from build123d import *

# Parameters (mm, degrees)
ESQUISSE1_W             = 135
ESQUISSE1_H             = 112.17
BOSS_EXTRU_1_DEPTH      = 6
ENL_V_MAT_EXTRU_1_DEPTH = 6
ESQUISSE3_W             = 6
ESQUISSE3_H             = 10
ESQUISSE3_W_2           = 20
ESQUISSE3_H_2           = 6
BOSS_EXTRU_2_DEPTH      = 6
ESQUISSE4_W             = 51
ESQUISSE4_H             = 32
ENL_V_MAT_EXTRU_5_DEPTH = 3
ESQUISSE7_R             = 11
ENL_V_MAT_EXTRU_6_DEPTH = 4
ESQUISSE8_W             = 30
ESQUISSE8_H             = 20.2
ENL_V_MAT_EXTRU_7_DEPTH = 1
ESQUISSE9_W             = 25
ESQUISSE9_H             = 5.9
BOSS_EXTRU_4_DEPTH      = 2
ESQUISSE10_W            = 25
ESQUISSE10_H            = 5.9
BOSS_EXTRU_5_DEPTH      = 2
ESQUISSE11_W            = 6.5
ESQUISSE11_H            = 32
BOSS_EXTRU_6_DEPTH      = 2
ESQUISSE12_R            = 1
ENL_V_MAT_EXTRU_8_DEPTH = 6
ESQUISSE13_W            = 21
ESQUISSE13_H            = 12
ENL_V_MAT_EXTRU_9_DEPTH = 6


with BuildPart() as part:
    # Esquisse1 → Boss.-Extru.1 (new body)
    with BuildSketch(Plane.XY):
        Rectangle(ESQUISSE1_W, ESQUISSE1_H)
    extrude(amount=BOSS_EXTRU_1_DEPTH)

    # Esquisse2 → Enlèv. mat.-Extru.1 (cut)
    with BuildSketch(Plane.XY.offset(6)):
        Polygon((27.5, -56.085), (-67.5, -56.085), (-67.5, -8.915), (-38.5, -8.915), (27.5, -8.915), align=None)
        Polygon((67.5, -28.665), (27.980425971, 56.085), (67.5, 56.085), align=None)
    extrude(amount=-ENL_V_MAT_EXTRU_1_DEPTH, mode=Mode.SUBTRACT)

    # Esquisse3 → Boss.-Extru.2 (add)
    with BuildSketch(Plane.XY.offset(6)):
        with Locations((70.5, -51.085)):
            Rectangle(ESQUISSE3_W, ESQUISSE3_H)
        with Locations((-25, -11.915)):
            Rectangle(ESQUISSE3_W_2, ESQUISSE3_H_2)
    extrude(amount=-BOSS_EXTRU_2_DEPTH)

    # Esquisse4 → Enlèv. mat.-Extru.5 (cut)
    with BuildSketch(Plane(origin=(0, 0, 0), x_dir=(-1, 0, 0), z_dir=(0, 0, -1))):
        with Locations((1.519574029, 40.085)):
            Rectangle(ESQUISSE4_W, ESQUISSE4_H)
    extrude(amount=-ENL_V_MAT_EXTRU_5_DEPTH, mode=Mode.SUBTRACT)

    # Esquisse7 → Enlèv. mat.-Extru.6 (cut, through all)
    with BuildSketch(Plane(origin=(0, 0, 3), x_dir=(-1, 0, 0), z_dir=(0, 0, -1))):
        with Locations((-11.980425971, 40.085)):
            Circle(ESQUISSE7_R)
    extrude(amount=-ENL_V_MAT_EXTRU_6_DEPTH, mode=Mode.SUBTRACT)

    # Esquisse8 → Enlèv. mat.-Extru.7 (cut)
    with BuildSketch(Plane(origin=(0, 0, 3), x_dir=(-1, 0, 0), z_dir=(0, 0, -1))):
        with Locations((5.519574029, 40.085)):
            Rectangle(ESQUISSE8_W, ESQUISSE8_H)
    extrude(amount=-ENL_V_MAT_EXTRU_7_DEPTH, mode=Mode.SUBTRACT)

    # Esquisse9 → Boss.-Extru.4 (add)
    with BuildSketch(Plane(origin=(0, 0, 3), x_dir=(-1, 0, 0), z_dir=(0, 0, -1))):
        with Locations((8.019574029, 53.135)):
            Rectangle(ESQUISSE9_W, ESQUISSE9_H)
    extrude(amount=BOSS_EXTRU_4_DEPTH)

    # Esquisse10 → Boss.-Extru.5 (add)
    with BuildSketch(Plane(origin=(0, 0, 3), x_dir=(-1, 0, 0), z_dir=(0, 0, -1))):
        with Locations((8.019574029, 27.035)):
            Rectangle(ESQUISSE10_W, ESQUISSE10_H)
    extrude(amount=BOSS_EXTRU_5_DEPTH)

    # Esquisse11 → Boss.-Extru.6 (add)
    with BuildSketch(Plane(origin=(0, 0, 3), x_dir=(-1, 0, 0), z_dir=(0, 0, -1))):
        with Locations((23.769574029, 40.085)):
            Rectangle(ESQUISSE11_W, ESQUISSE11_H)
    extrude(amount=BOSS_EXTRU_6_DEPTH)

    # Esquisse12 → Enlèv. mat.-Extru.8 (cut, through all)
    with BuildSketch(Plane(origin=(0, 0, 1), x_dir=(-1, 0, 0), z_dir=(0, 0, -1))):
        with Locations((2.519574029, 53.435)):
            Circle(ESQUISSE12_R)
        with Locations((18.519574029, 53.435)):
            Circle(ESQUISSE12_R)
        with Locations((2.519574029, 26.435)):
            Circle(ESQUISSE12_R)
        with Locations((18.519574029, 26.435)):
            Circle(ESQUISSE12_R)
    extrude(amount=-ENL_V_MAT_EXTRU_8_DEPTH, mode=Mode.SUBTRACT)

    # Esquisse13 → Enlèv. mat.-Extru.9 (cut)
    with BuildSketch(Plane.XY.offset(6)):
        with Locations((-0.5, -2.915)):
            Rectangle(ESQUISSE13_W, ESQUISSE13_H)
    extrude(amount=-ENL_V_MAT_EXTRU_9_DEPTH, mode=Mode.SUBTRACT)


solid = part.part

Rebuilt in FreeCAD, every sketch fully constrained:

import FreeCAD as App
import Part
import Sketcher
Q = App.Units.Quantity

doc = App.newDocument("Part")
body = doc.addObject("PartDesign::Body", "Body")

# Sketch on XY plane
sketch1 = body.newObject("Sketcher::SketchObject", "Sketch")
sketch1.AttachmentSupport = (doc.getObject("XY_Plane"), [""])
sketch1.MapMode = "FlatFace"
sketch1.addGeometry(Part.LineSegment(App.Vector(-68, 56, 0), App.Vector(-68, -56, 0)), False)
sketch1.addGeometry(Part.LineSegment(App.Vector(-68, -56, 0), App.Vector(68, -56, 0)), False)
sketch1.addGeometry(Part.LineSegment(App.Vector(68, -56, 0), App.Vector(68, 56, 0)), False)
sketch1.addGeometry(Part.LineSegment(App.Vector(68, 56, 0), App.Vector(-68, 56, 0)), False)
sketch1.addConstraint(Sketcher.Constraint("Coincident", 0, 2, 1, 1))
sketch1.addConstraint(Sketcher.Constraint("Coincident", 1, 2, 2, 1))
sketch1.addConstraint(Sketcher.Constraint("Coincident", 2, 2, 3, 1))
sketch1.addConstraint(Sketcher.Constraint("Coincident", 3, 2, 0, 1))
sketch1.addConstraint(Sketcher.Constraint("Vertical", 0))
sketch1.addConstraint(Sketcher.Constraint("Horizontal", 1))
sketch1.addConstraint(Sketcher.Constraint("Vertical", 2))
sketch1.addConstraint(Sketcher.Constraint("Horizontal", 3))
sketch1.addConstraint(Sketcher.Constraint("Symmetric", 0, 2, 2, 2, -1, 1))
sketch1.addConstraint(Sketcher.Constraint("DistanceX", 1, 1, 1, 2, Q("135 mm")))
sketch1.addConstraint(Sketcher.Constraint("DistanceY", 0, 2, 0, 1, Q("112.17 mm")))
pad1 = body.newObject("PartDesign::Pad", "Pad")
pad1.Profile = sketch1
pad1.Length = 6

# Sketch on XY plane
sketch2 = body.newObject("Sketcher::SketchObject", "Sketch001")
sketch2.AttachmentSupport = (doc.getObject("XY_Plane"), [""])
sketch2.MapMode = "FlatFace"
sketch2.AttachmentOffset = App.Placement(App.Vector(0, 0, 6), App.Rotation())
sketch2.addGeometry(Part.LineSegment(App.Vector(-68, -56, 0), App.Vector(28, -56, 0)), False)
sketch2.addGeometry(Part.LineSegment(App.Vector(28, -56, 0), App.Vector(28, -9, 0)), False)
sketch2.addGeometry(Part.LineSegment(App.Vector(28, -9, 0), App.Vector(-68, -9, 0)), False)
sketch2.addGeometry(Part.LineSegment(App.Vector(-68, -9, 0), App.Vector(-68, -56, 0)), False)
sketch2.addGeometry(Part.LineSegment(App.Vector(28, 56, 0), App.Vector(68, -29, 0)), False)
sketch2.addGeometry(Part.LineSegment(App.Vector(68, -29, 0), App.Vector(68, 56, 0)), False)
sketch2.addGeometry(Part.LineSegment(App.Vector(68, 56, 0), App.Vector(28, 56, 0)), False)
sketch2.addConstraint(Sketcher.Constraint("Coincident", 0, 2, 1, 1))
sketch2.addConstraint(Sketcher.Constraint("Coincident", 1, 2, 2, 1))
sketch2.addConstraint(Sketcher.Constraint("Coincident", 2, 2, 3, 1))
sketch2.addConstraint(Sketcher.Constraint("Coincident", 3, 2, 0, 1))
sketch2.addConstraint(Sketcher.Constraint("Coincident", 4, 2, 5, 1))
sketch2.addConstraint(Sketcher.Constraint("Coincident", 5, 2, 6, 1))
sketch2.addConstraint(Sketcher.Constraint("Coincident", 6, 2, 4, 1))
sketch2.addConstraint(Sketcher.Constraint("Horizontal", 0))
sketch2.addConstraint(Sketcher.Constraint("Vertical", 1))
sketch2.addConstraint(Sketcher.Constraint("Horizontal", 2))
sketch2.addConstraint(Sketcher.Constraint("Vertical", 3))
sketch2.addConstraint(Sketcher.Constraint("Vertical", 5))
sketch2.addConstraint(Sketcher.Constraint("Horizontal", 6))
sketch2.addConstraint(Sketcher.Constraint("Symmetric", 3, 2, 5, 2, -1, 1))
sketch2.addConstraint(Sketcher.Constraint("DistanceX", 0, 1, 0, 2, Q("95 mm")))
sketch2.addConstraint(Sketcher.Constraint("Angle", 4, Q("-65 deg")))
sketch2.addConstraint(Sketcher.Constraint("DistanceX", 1, 2, 4, 2, Q("40 mm")))
sketch2.addConstraint(Sketcher.Constraint("DistanceY", 1, 2, 5, 2, Q("65 mm")))
sketch2.addConstraint(Sketcher.Constraint("DistanceY", 1, 1, 1, 2, Q("47.17 mm")))
sketch2.addConstraint(Sketcher.Constraint("DistanceY", 5, 1, 5, 2, Q("84.75 mm")))
pocket1 = body.newObject("PartDesign::Pocket", "Pocket")
pocket1.Profile = sketch2
pocket1.Length = 6

# Sketch on XY plane
sketch3 = body.newObject("Sketcher::SketchObject", "Sketch002")
sketch3.AttachmentSupport = (doc.getObject("XY_Plane"), [""])
sketch3.MapMode = "FlatFace"
sketch3.AttachmentOffset = App.Placement(App.Vector(0, 0, 6), App.Rotation())
sketch3.addGeometry(Part.LineSegment(App.Vector(68, -46, 0), App.Vector(68, -56, 0)), False)
sketch3.addGeometry(Part.LineSegment(App.Vector(68, -56, 0), App.Vector(74, -56, 0)), False)
sketch3.addGeometry(Part.LineSegment(App.Vector(74, -56, 0), App.Vector(74, -46, 0)), False)
sketch3.addGeometry(Part.LineSegment(App.Vector(74, -46, 0), App.Vector(68, -46, 0)), False)
sketch3.addGeometry(Part.LineSegment(App.Vector(-35, -9, 0), App.Vector(-35, -15, 0)), False)
sketch3.addGeometry(Part.LineSegment(App.Vector(-35, -15, 0), App.Vector(-15, -15, 0)), False)
sketch3.addGeometry(Part.LineSegment(App.Vector(-15, -15, 0), App.Vector(-15, -9, 0)), False)
sketch3.addGeometry(Part.LineSegment(App.Vector(-15, -9, 0), App.Vector(-35, -9, 0)), False)
sketch3.addConstraint(Sketcher.Constraint("Coincident", 0, 2, 1, 1))
sketch3.addConstraint(Sketcher.Constraint("Coincident", 1, 2, 2, 1))
sketch3.addConstraint(Sketcher.Constraint("Coincident", 2, 2, 3, 1))
sketch3.addConstraint(Sketcher.Constraint("Coincident", 3, 2, 0, 1))
sketch3.addConstraint(Sketcher.Constraint("Coincident", 4, 2, 5, 1))
sketch3.addConstraint(Sketcher.Constraint("Coincident", 5, 2, 6, 1))
sketch3.addConstraint(Sketcher.Constraint("Coincident", 6, 2, 7, 1))
sketch3.addConstraint(Sketcher.Constraint("Coincident", 7, 2, 4, 1))
sketch3.addConstraint(Sketcher.Constraint("Vertical", 0))
sketch3.addConstraint(Sketcher.Constraint("Horizontal", 1))
sketch3.addConstraint(Sketcher.Constraint("Vertical", 2))
sketch3.addConstraint(Sketcher.Constraint("Horizontal", 3))
sketch3.addConstraint(Sketcher.Constraint("Vertical", 4))
sketch3.addConstraint(Sketcher.Constraint("Horizontal", 5))
sketch3.addConstraint(Sketcher.Constraint("Vertical", 6))
sketch3.addConstraint(Sketcher.Constraint("Horizontal", 7))
sketch3.addConstraint(Sketcher.Constraint("Equal", 3, 4))
sketch3.addConstraint(Sketcher.Constraint("DistanceX", 1, 1, 1, 2, Q("6 mm")))
sketch3.addConstraint(Sketcher.Constraint("DistanceX", 5, 1, 5, 2, Q("20 mm")))
sketch3.addConstraint(Sketcher.Constraint("DistanceY", 0, 2, 0, 1, Q("10 mm")))
sketch3.addConstraint(Sketcher.Constraint("DistanceX", 4, 2, -1, 1, Q("35 mm")))
sketch3.addConstraint(Sketcher.Constraint("DistanceX", -1, 1, 0, 2, Q("67.5 mm")))
sketch3.addConstraint(Sketcher.Constraint("DistanceY", 3, 2, 4, 2, Q("31.17 mm")))
sketch3.addConstraint(Sketcher.Constraint("DistanceY", 0, 2, -1, 1, Q("56.085 mm")))
pad2 = body.newObject("PartDesign::Pad", "Pad001")
pad2.Profile = sketch3
pad2.Length = 6
pad2.Reversed = True

# Sketch on XY plane
sketch4 = body.newObject("Sketcher::SketchObject", "Sketch003")
sketch4.AttachmentSupport = (doc.getObject("XY_Plane"), [""])
sketch4.MapMode = "FlatFace"
sketch4.addGeometry(Part.LineSegment(App.Vector(24, 56, 0), App.Vector(24, 24, 0)), False)
sketch4.addGeometry(Part.LineSegment(App.Vector(24, 24, 0), App.Vector(-27, 24, 0)), False)
sketch4.addGeometry(Part.LineSegment(App.Vector(-27, 24, 0), App.Vector(-27, 56, 0)), False)
sketch4.addGeometry(Part.LineSegment(App.Vector(-27, 56, 0), App.Vector(24, 56, 0)), False)
sketch4.addConstraint(Sketcher.Constraint("Coincident", 0, 2, 1, 1))
sketch4.addConstraint(Sketcher.Constraint("Coincident", 1, 2, 2, 1))
sketch4.addConstraint(Sketcher.Constraint("Coincident", 2, 2, 3, 1))
sketch4.addConstraint(Sketcher.Constraint("Coincident", 3, 2, 0, 1))
sketch4.addConstraint(Sketcher.Constraint("Vertical", 0))
sketch4.addConstraint(Sketcher.Constraint("Horizontal", 1))
sketch4.addConstraint(Sketcher.Constraint("Vertical", 2))
sketch4.addConstraint(Sketcher.Constraint("Horizontal", 3))
sketch4.addConstraint(Sketcher.Constraint("DistanceX", 1, 2, 1, 1, Q("51 mm")))
sketch4.addConstraint(Sketcher.Constraint("DistanceY", 0, 2, 0, 1, Q("32 mm")))
sketch4.addConstraint(Sketcher.Constraint("DistanceY", -1, 1, 0, 2, Q("24.085 mm")))
sketch4.addConstraint(Sketcher.Constraint("DistanceX", -1, 1, 0, 2, Q("23.980426 mm")))
pocket2 = body.newObject("PartDesign::Pocket", "Pocket001")
pocket2.Profile = sketch4
pocket2.Length = 3
pocket2.Reversed = True

# Sketch on XY plane
sketch5 = body.newObject("Sketcher::SketchObject", "Sketch004")
sketch5.AttachmentSupport = (doc.getObject("XY_Plane"), [""])
sketch5.MapMode = "FlatFace"
sketch5.AttachmentOffset = App.Placement(App.Vector(0, 0, 3), App.Rotation())
sketch5.addGeometry(Part.Circle(App.Vector(12, 40, 0), App.Vector(0, 0, 1), 11), False)
sketch5.addConstraint(Sketcher.Constraint("Diameter", 0, Q("22 mm")))
sketch5.addConstraint(Sketcher.Constraint("DistanceY", -1, 1, 0, 3, Q("40.085 mm")))
sketch5.addConstraint(Sketcher.Constraint("DistanceX", -1, 1, 0, 3, Q("11.980426 mm")))
pocket3 = body.newObject("PartDesign::Pocket", "Pocket002")
pocket3.Profile = sketch5
pocket3.Type = "ThroughAll"
pocket3.Reversed = True

# Sketch on XY plane
sketch6 = body.newObject("Sketcher::SketchObject", "Sketch005")
sketch6.AttachmentSupport = (doc.getObject("XY_Plane"), [""])
sketch6.MapMode = "FlatFace"
sketch6.AttachmentOffset = App.Placement(App.Vector(0, 0, 3), App.Rotation())
sketch6.addGeometry(Part.LineSegment(App.Vector(9, 50, 0), App.Vector(9, 30, 0)), False)
sketch6.addGeometry(Part.LineSegment(App.Vector(9, 30, 0), App.Vector(-21, 30, 0)), False)
sketch6.addGeometry(Part.LineSegment(App.Vector(-21, 30, 0), App.Vector(-21, 50, 0)), False)
sketch6.addGeometry(Part.LineSegment(App.Vector(-21, 50, 0), App.Vector(9, 50, 0)), False)
sketch6.addConstraint(Sketcher.Constraint("Coincident", 0, 2, 1, 1))
sketch6.addConstraint(Sketcher.Constraint("Coincident", 1, 2, 2, 1))
sketch6.addConstraint(Sketcher.Constraint("Coincident", 2, 2, 3, 1))
sketch6.addConstraint(Sketcher.Constraint("Coincident", 3, 2, 0, 1))
sketch6.addConstraint(Sketcher.Constraint("Vertical", 0))
sketch6.addConstraint(Sketcher.Constraint("Horizontal", 1))
sketch6.addConstraint(Sketcher.Constraint("Vertical", 2))
sketch6.addConstraint(Sketcher.Constraint("Horizontal", 3))
sketch6.addConstraint(Sketcher.Constraint("DistanceX", 1, 2, 1, 1, Q("30 mm")))
sketch6.addConstraint(Sketcher.Constraint("DistanceY", 0, 2, 0, 1, Q("20.2 mm")))
sketch6.addConstraint(Sketcher.Constraint("DistanceY", -1, 1, 0, 2, Q("29.985 mm")))
sketch6.addConstraint(Sketcher.Constraint("DistanceX", -1, 1, 0, 2, Q("9.480426 mm")))
pocket4 = body.newObject("PartDesign::Pocket", "Pocket003")
pocket4.Profile = sketch6
pocket4.Length = 1
pocket4.Reversed = True

# Sketch on XY plane
sketch7 = body.newObject("Sketcher::SketchObject", "Sketch006")
sketch7.AttachmentSupport = (doc.getObject("XY_Plane"), [""])
sketch7.MapMode = "FlatFace"
sketch7.AttachmentOffset = App.Placement(App.Vector(0, 0, 3), App.Rotation())
sketch7.addGeometry(Part.LineSegment(App.Vector(4, 56, 0), App.Vector(4, 50, 0)), False)
sketch7.addGeometry(Part.LineSegment(App.Vector(4, 50, 0), App.Vector(-21, 50, 0)), False)
sketch7.addGeometry(Part.LineSegment(App.Vector(-21, 50, 0), App.Vector(-21, 56, 0)), False)
sketch7.addGeometry(Part.LineSegment(App.Vector(-21, 56, 0), App.Vector(4, 56, 0)), False)
sketch7.addConstraint(Sketcher.Constraint("Coincident", 0, 2, 1, 1))
sketch7.addConstraint(Sketcher.Constraint("Coincident", 1, 2, 2, 1))
sketch7.addConstraint(Sketcher.Constraint("Coincident", 2, 2, 3, 1))
sketch7.addConstraint(Sketcher.Constraint("Coincident", 3, 2, 0, 1))
sketch7.addConstraint(Sketcher.Constraint("Vertical", 0))
sketch7.addConstraint(Sketcher.Constraint("Horizontal", 1))
sketch7.addConstraint(Sketcher.Constraint("Vertical", 2))
sketch7.addConstraint(Sketcher.Constraint("Horizontal", 3))
sketch7.addConstraint(Sketcher.Constraint("DistanceX", 1, 2, 1, 1, Q("25 mm")))
sketch7.addConstraint(Sketcher.Constraint("DistanceY", 0, 2, 0, 1, Q("5.9 mm")))
sketch7.addConstraint(Sketcher.Constraint("DistanceY", -1, 1, 0, 2, Q("50.185 mm")))
sketch7.addConstraint(Sketcher.Constraint("DistanceX", -1, 1, 0, 2, Q("4.480426 mm")))
pad3 = body.newObject("PartDesign::Pad", "Pad002")
pad3.Profile = sketch7
pad3.Length = 2
pad3.Reversed = True

# Sketch on XY plane
sketch8 = body.newObject("Sketcher::SketchObject", "Sketch007")
sketch8.AttachmentSupport = (doc.getObject("XY_Plane"), [""])
sketch8.MapMode = "FlatFace"
sketch8.AttachmentOffset = App.Placement(App.Vector(0, 0, 3), App.Rotation())
sketch8.addGeometry(Part.LineSegment(App.Vector(4, 30, 0), App.Vector(4, 24, 0)), False)
sketch8.addGeometry(Part.LineSegment(App.Vector(4, 24, 0), App.Vector(-21, 24, 0)), False)
sketch8.addGeometry(Part.LineSegment(App.Vector(-21, 24, 0), App.Vector(-21, 30, 0)), False)
sketch8.addGeometry(Part.LineSegment(App.Vector(-21, 30, 0), App.Vector(4, 30, 0)), False)
sketch8.addConstraint(Sketcher.Constraint("Coincident", 0, 2, 1, 1))
sketch8.addConstraint(Sketcher.Constraint("Coincident", 1, 2, 2, 1))
sketch8.addConstraint(Sketcher.Constraint("Coincident", 2, 2, 3, 1))
sketch8.addConstraint(Sketcher.Constraint("Coincident", 3, 2, 0, 1))
sketch8.addConstraint(Sketcher.Constraint("Vertical", 0))
sketch8.addConstraint(Sketcher.Constraint("Horizontal", 1))
sketch8.addConstraint(Sketcher.Constraint("Vertical", 2))
sketch8.addConstraint(Sketcher.Constraint("Horizontal", 3))
sketch8.addConstraint(Sketcher.Constraint("DistanceX", 1, 2, 1, 1, Q("25 mm")))
sketch8.addConstraint(Sketcher.Constraint("DistanceY", 0, 2, 0, 1, Q("5.9 mm")))
sketch8.addConstraint(Sketcher.Constraint("DistanceY", -1, 1, 0, 2, Q("24.085 mm")))
sketch8.addConstraint(Sketcher.Constraint("DistanceX", -1, 1, 0, 2, Q("4.480426 mm")))
pad4 = body.newObject("PartDesign::Pad", "Pad003")
pad4.Profile = sketch8
pad4.Length = 2
pad4.Reversed = True

# Sketch on XY plane
sketch9 = body.newObject("Sketcher::SketchObject", "Sketch008")
sketch9.AttachmentSupport = (doc.getObject("XY_Plane"), [""])
sketch9.MapMode = "FlatFace"
sketch9.AttachmentOffset = App.Placement(App.Vector(0, 0, 3), App.Rotation())
sketch9.addGeometry(Part.LineSegment(App.Vector(-21, 56, 0), App.Vector(-21, 24, 0)), False)
sketch9.addGeometry(Part.LineSegment(App.Vector(-21, 24, 0), App.Vector(-27, 24, 0)), False)
sketch9.addGeometry(Part.LineSegment(App.Vector(-27, 24, 0), App.Vector(-27, 56, 0)), False)
sketch9.addGeometry(Part.LineSegment(App.Vector(-27, 56, 0), App.Vector(-21, 56, 0)), False)
sketch9.addConstraint(Sketcher.Constraint("Coincident", 0, 2, 1, 1))
sketch9.addConstraint(Sketcher.Constraint("Coincident", 1, 2, 2, 1))
sketch9.addConstraint(Sketcher.Constraint("Coincident", 2, 2, 3, 1))
sketch9.addConstraint(Sketcher.Constraint("Coincident", 3, 2, 0, 1))
sketch9.addConstraint(Sketcher.Constraint("Vertical", 0))
sketch9.addConstraint(Sketcher.Constraint("Horizontal", 1))
sketch9.addConstraint(Sketcher.Constraint("Vertical", 2))
sketch9.addConstraint(Sketcher.Constraint("Horizontal", 3))
sketch9.addConstraint(Sketcher.Constraint("DistanceY", 0, 2, 0, 1, Q("32 mm")))
sketch9.addConstraint(Sketcher.Constraint("DistanceX", 1, 2, 1, 1, Q("6.5 mm")))
sketch9.addConstraint(Sketcher.Constraint("DistanceY", -1, 1, 0, 2, Q("24.085 mm")))
sketch9.addConstraint(Sketcher.Constraint("DistanceX", 0, 2, -1, 1, Q("20.519574 mm")))
pad5 = body.newObject("PartDesign::Pad", "Pad004")
pad5.Profile = sketch9
pad5.Length = 2
pad5.Reversed = True

# Sketch on XY plane
sketch10 = body.newObject("Sketcher::SketchObject", "Sketch009")
sketch10.AttachmentSupport = (doc.getObject("XY_Plane"), [""])
sketch10.MapMode = "FlatFace"
sketch10.AttachmentOffset = App.Placement(App.Vector(0, 0, 1), App.Rotation())
sketch10.addGeometry(Part.Circle(App.Vector(-2.5, 53.4, 0), App.Vector(0, 0, 1), 1), False)
sketch10.addGeometry(Part.Circle(App.Vector(-18.5, 53.4, 0), App.Vector(0, 0, 1), 1), False)
sketch10.addGeometry(Part.Circle(App.Vector(-2.5, 26.4, 0), App.Vector(0, 0, 1), 1), False)
sketch10.addGeometry(Part.Circle(App.Vector(-18.5, 26.4, 0), App.Vector(0, 0, 1), 1), False)
sketch10.addConstraint(Sketcher.Constraint("Equal", 0, 1))
sketch10.addConstraint(Sketcher.Constraint("Equal", 1, 2))
sketch10.addConstraint(Sketcher.Constraint("Equal", 2, 3))
sketch10.addConstraint(Sketcher.Constraint("Horizontal", 0, 3, 1, 3))
sketch10.addConstraint(Sketcher.Constraint("Horizontal", 2, 3, 3, 3))
sketch10.addConstraint(Sketcher.Constraint("Vertical", 0, 3, 2, 3))
sketch10.addConstraint(Sketcher.Constraint("Vertical", 1, 3, 3, 3))
sketch10.addConstraint(Sketcher.Constraint("Diameter", 0, Q("2 mm")))
sketch10.addConstraint(Sketcher.Constraint("DistanceX", 1, 3, 0, 3, Q("16 mm")))
sketch10.addConstraint(Sketcher.Constraint("DistanceY", 2, 3, 0, 3, Q("27 mm")))
sketch10.addConstraint(Sketcher.Constraint("DistanceY", -1, 1, 0, 3, Q("53.435 mm")))
sketch10.addConstraint(Sketcher.Constraint("DistanceX", 0, 3, -1, 1, Q("2.519574 mm")))
pocket5 = body.newObject("PartDesign::Pocket", "Pocket004")
pocket5.Profile = sketch10
pocket5.Type = "ThroughAll"
pocket5.Reversed = True

# Sketch on XY plane
sketch11 = body.newObject("Sketcher::SketchObject", "Sketch010")
sketch11.AttachmentSupport = (doc.getObject("XY_Plane"), [""])
sketch11.MapMode = "FlatFace"
sketch11.AttachmentOffset = App.Placement(App.Vector(0, 0, 6), App.Rotation())
sketch11.addGeometry(Part.LineSegment(App.Vector(-11, 3, 0), App.Vector(-11, -9, 0)), False)
sketch11.addGeometry(Part.LineSegment(App.Vector(-11, -9, 0), App.Vector(10, -9, 0)), False)
sketch11.addGeometry(Part.LineSegment(App.Vector(10, -9, 0), App.Vector(10, 3, 0)), False)
sketch11.addGeometry(Part.LineSegment(App.Vector(10, 3, 0), App.Vector(-11, 3, 0)), False)
sketch11.addConstraint(Sketcher.Constraint("Coincident", 0, 2, 1, 1))
sketch11.addConstraint(Sketcher.Constraint("Coincident", 1, 2, 2, 1))
sketch11.addConstraint(Sketcher.Constraint("Coincident", 2, 2, 3, 1))
sketch11.addConstraint(Sketcher.Constraint("Coincident", 3, 2, 0, 1))
sketch11.addConstraint(Sketcher.Constraint("Vertical", 0))
sketch11.addConstraint(Sketcher.Constraint("Horizontal", 1))
sketch11.addConstraint(Sketcher.Constraint("Vertical", 2))
sketch11.addConstraint(Sketcher.Constraint("Horizontal", 3))
sketch11.addConstraint(Sketcher.Constraint("DistanceX", 1, 1, 1, 2, Q("21 mm")))
sketch11.addConstraint(Sketcher.Constraint("DistanceY", 0, 2, 0, 1, Q("12 mm")))
sketch11.addConstraint(Sketcher.Constraint("DistanceX", 0, 2, -1, 1, Q("11 mm")))
sketch11.addConstraint(Sketcher.Constraint("DistanceY", 0, 2, -1, 1, Q("8.915 mm")))
pocket6 = body.newObject("PartDesign::Pocket", "Pocket005")
pocket6.Profile = sketch11
pocket6.Length = 6

doc.recompute()
